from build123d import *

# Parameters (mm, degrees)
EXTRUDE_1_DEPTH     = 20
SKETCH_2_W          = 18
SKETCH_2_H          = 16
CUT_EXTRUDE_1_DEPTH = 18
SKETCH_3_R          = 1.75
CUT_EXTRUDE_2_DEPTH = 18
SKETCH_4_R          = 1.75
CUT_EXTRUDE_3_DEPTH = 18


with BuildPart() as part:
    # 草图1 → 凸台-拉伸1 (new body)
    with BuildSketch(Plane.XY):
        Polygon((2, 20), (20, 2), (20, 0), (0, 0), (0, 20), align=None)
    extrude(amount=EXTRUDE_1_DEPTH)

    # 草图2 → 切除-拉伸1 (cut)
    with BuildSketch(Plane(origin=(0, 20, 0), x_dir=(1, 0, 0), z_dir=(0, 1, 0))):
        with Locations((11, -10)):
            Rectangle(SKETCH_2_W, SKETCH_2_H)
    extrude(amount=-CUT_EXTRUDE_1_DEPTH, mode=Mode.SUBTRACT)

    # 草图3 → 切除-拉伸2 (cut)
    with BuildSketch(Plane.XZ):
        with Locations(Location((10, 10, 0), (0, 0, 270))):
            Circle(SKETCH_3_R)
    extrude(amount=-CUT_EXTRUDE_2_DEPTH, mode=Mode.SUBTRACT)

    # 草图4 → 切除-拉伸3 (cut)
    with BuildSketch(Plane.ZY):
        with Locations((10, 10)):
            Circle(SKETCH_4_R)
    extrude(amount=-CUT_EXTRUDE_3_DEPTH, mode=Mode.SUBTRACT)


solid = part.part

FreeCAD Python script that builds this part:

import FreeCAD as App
import Part
import Sketcher
Q = App.Units.Quantity

doc = App.newDocument("Part")
params = doc.addObject("Spreadsheet::Sheet", "Params")
for row, (alias, value) in enumerate([
    ("sketch1_width", "2 mm"),
    ("sketch1_width2", "20 mm"),
    ("pad1_length", "20 mm"),
    ("sketch2_width", "18 mm"),
    ("sketch2_height", "16 mm"),
    ("pocket1_length", "18 mm"),
    ("sketch3_diameter", "3.5 mm"),
    ("pocket2_length", "18 mm"),
    ("sketch4_diameter", "3.5 mm"),
    ("pocket3_length", "18 mm"),
], start=1):
    params.set(f"A{row}", alias)
    params.set(f"B{row}", "=" + value)
    params.setAlias(f"B{row}", alias)

body = doc.addObject("PartDesign::Body", "Body")

# Sketch on XY plane
sketch1 = body.newObject("Sketcher::SketchObject", "Sketch")
sketch1.AttachmentSupport = (doc.getObject("XY_Plane"), [""])
sketch1.MapMode = "FlatFace"
sketch1.addGeometry(Part.LineSegment(App.Vector(20, 2, 0), App.Vector(2, 20, 0)), False)
sketch1.addGeometry(Part.LineSegment(App.Vector(2, 20, 0), App.Vector(0, 20, 0)), False)
sketch1.addGeometry(Part.LineSegment(App.Vector(0, 20, 0), App.Vector(0, 0, 0)), False)
sketch1.addGeometry(Part.LineSegment(App.Vector(0, 0, 0), App.Vector(20, 0, 0)), False)
sketch1.addGeometry(Part.LineSegment(App.Vector(20, 0, 0), App.Vector(20, 2, 0)), False)
sketch1.addConstraint(Sketcher.Constraint("Coincident", 0, 2, 1, 1))
sketch1.addConstraint(Sketcher.Constraint("Coincident", 1, 2, 2, 1))
sketch1.addConstraint(Sketcher.Constraint("Coincident", 2, 2, 3, 1))
sketch1.addConstraint(Sketcher.Constraint("Coincident", 3, 2, 4, 1))
sketch1.addConstraint(Sketcher.Constraint("Coincident", 4, 2, 0, 1))
sketch1.addConstraint(Sketcher.Constraint("Horizontal", 1))
sketch1.addConstraint(Sketcher.Constraint("Vertical", 2))
sketch1.addConstraint(Sketcher.Constraint("Horizontal", 3))
sketch1.addConstraint(Sketcher.Constraint("Vertical", 4))
sketch1.addConstraint(Sketcher.Constraint("Coincident", 2, 2, -1, 1))
sketch1.addConstraint(Sketcher.Constraint("Equal", 3, 2))
sketch1.addConstraint(Sketcher.Constraint("Equal", 1, 4))
sketch1.addConstraint(Sketcher.Constraint("DistanceX", 1, 2, 1, 1, Q("2 mm")))
sketch1.addConstraint(Sketcher.Constraint("DistanceX", 3, 1, 3, 2, Q("20 mm")))
sketch1.setExpression("Constraints[12]", "Params.sketch1_width")
sketch1.setExpression("Constraints[13]", "Params.sketch1_width2")
pad1 = body.newObject("PartDesign::Pad", "Pad")
pad1.Profile = sketch1
pad1.setExpression("Length", "Params.pad1_length")

# Sketch on XZ plane
sketch2 = body.newObject("Sketcher::SketchObject", "Sketch001")
sketch2.AttachmentSupport = (doc.getObject("XZ_Plane"), [""])
sketch2.MapMode = "FlatFace"
sketch2.AttachmentOffset = App.Placement(App.Vector(0, 0, -20), App.Rotation())
sketch2.addGeometry(Part.LineSegment(App.Vector(2, 2, 0), App.Vector(2, 18, 0)), False)
sketch2.addGeometry(Part.LineSegment(App.Vector(2, 18, 0), App.Vector(20, 18, 0)), False)
sketch2.addGeometry(Part.LineSegment(App.Vector(20, 18, 0), App.Vector(20, 2, 0)), False)
sketch2.addGeometry(Part.LineSegment(App.Vector(20, 2, 0), App.Vector(2, 2, 0)), False)
sketch2.addConstraint(Sketcher.Constraint("Coincident", 0, 2, 1, 1))
sketch2.addConstraint(Sketcher.Constraint("Coincident", 1, 2, 2, 1))
sketch2.addConstraint(Sketcher.Constraint("Coincident", 2, 2, 3, 1))
sketch2.addConstraint(Sketcher.Constraint("Coincident", 3, 2, 0, 1))
sketch2.addConstraint(Sketcher.Constraint("Vertical", 0))
sketch2.addConstraint(Sketcher.Constraint("Horizontal", 1))
sketch2.addConstraint(Sketcher.Constraint("Vertical", 2))
sketch2.addConstraint(Sketcher.Constraint("Horizontal", 3))
sketch2.addConstraint(Sketcher.Constraint("DistanceX", 1, 1, 1, 2, Q("18 mm")))
sketch2.addConstraint(Sketcher.Constraint("DistanceY", 0, 1, 0, 2, Q("16 mm")))
sketch2.addConstraint(Sketcher.Constraint("DistanceX", -1, 1, 0, 2, Q("2 mm")))
sketch2.addConstraint(Sketcher.Constraint("DistanceY", -1, 1, 0, 2, Q("18 mm")))
sketch2.setExpression("Constraints[8]", "Params.sketch2_width")
sketch2.setExpression("Constraints[9]", "Params.sketch2_height")
pocket1 = body.newObject("PartDesign::Pocket", "Pocket")
pocket1.Profile = sketch2
pocket1.setExpression("Length", "Params.pocket1_length")
pocket1.Reversed = True

# Sketch on XZ plane
sketch3 = body.newObject("Sketcher::SketchObject", "Sketch002")
sketch3.AttachmentSupport = (doc.getObject("XZ_Plane"), [""])
sketch3.MapMode = "FlatFace"
sketch3.addGeometry(Part.Circle(App.Vector(10, 10, 0), App.Vector(0, 0, 1), 1.75), False)
sketch3.addConstraint(Sketcher.Constraint("Diameter", 0, Q("3.5 mm")))
sketch3.addConstraint(Sketcher.Constraint("DistanceX", -1, 1, 0, 3, Q("10 mm")))
sketch3.addConstraint(Sketcher.Constraint("DistanceY", -1, 1, 0, 3, Q("10 mm")))
sketch3.setExpression("Constraints[0]", "Params.sketch3_diameter")
pocket2 = body.newObject("PartDesign::Pocket", "Pocket001")
pocket2.Profile = sketch3
pocket2.setExpression("Length", "Params.pocket2_length")

# Sketch on YZ plane
sketch4 = body.newObject("Sketcher::SketchObject", "Sketch003")
sketch4.AttachmentSupport = (doc.getObject("YZ_Plane"), [""])
sketch4.MapMode = "FlatFace"
sketch4.addGeometry(Part.Circle(App.Vector(10, 10, 0), App.Vector(0, 0, 1), 1.75), False)
sketch4.addConstraint(Sketcher.Constraint("Diameter", 0, Q("3.5 mm")))
sketch4.addConstraint(Sketcher.Constraint("DistanceX", -1, 1, 0, 3, Q("10 mm")))
sketch4.addConstraint(Sketcher.Constraint("DistanceY", -1, 1, 0, 3, Q("10 mm")))
sketch4.setExpression("Constraints[0]", "Params.sketch4_diameter")
pocket3 = body.newObject("PartDesign::Pocket", "Pocket002")
pocket3.Profile = sketch4
pocket3.setExpression("Length", "Params.pocket3_length")
pocket3.Reversed = True

doc.recompute()
